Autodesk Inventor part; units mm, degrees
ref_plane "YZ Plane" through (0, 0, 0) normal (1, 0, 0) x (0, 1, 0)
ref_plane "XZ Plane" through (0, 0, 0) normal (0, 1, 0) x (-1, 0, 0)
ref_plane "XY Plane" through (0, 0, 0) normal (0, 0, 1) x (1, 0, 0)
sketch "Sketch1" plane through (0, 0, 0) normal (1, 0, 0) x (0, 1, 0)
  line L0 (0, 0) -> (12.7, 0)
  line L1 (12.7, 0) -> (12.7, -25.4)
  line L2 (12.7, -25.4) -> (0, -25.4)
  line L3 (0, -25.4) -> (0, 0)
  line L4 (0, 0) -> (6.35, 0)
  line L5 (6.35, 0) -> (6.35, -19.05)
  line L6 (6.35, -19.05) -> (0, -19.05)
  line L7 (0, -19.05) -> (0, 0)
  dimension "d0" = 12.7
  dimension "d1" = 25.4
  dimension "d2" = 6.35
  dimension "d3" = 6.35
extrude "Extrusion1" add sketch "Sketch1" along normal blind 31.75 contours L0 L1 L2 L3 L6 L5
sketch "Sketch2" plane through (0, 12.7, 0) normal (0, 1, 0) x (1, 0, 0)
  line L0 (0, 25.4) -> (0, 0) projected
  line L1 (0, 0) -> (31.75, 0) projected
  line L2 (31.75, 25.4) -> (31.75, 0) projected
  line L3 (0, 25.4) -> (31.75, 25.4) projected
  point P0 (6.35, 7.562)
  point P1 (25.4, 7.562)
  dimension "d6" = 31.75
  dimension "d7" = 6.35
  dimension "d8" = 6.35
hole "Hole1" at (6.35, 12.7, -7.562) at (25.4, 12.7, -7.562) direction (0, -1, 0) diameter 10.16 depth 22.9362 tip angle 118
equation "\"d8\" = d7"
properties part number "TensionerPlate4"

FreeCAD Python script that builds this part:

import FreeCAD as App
import Part
import Sketcher
from FreeCAD import Vector
Q = App.Units.Quantity

doc = App.newDocument("Part")
body = doc.addObject("PartDesign::Body", "Body")

# Sketch on YZ plane
sketch1 = doc.addObject("Sketcher::SketchObject", "Sketch")
body.addObject(sketch1)
sketch1.AttachmentSupport = (doc.YZ_Plane, [""])
sketch1.MapMode = "FlatFace"
sketch1.addGeometry([
    Part.LineSegment(Vector(13, 0, 0), Vector(6, 0, 0)),  # 0
    Part.LineSegment(Vector(6, 0, 0), Vector(6, -19, 0)),  # 1
    Part.LineSegment(Vector(6, -19, 0), Vector(0, -19, 0)),  # 2
    Part.LineSegment(Vector(0, -19, 0), Vector(0, -25, 0)),  # 3
    Part.LineSegment(Vector(0, -25, 0), Vector(13, -25, 0)),  # 4
    Part.LineSegment(Vector(13, -25, 0), Vector(13, 0, 0)),  # 5
], False)
sketch1.addConstraint([
    Sketcher.Constraint("Coincident", 0, 2, 1, 1),
    Sketcher.Constraint("Coincident", 1, 2, 2, 1),
    Sketcher.Constraint("Coincident", 2, 2, 3, 1),
    Sketcher.Constraint("Coincident", 3, 2, 4, 1),
    Sketcher.Constraint("Coincident", 4, 2, 5, 1),
    Sketcher.Constraint("Coincident", 5, 2, 0, 1),
    Sketcher.Constraint("Horizontal", 0),
    Sketcher.Constraint("Vertical", 1),
    Sketcher.Constraint("Horizontal", 2),
    Sketcher.Constraint("Vertical", 3),
    Sketcher.Constraint("Horizontal", 4),
    Sketcher.Constraint("Vertical", 5),
    Sketcher.Constraint("PointOnObject", 0, 2, -1),
    Sketcher.Constraint("PointOnObject", 2, 2, -2),
    Sketcher.Constraint("Equal", 0, 2),
    Sketcher.Constraint("Equal", 2, 3),
    Sketcher.Constraint("DistanceY", 5, 1, 5, 2, Q("1 in")),
    Sketcher.Constraint("DistanceX", 4, 1, 4, 2, Q("0.5 in")),
])
pad1 = doc.addObject("PartDesign::Pad", "Pad")
body.addObject(pad1)
pad1.Profile = sketch1
pad1.Length = Q("1.25 in")

# Sketch on XZ plane
sketch2 = doc.addObject("Sketcher::SketchObject", "Sketch001")
body.addObject(sketch2)
sketch2.AttachmentSupport = (doc.XZ_Plane, [""])
sketch2.MapMode = "FlatFace"
sketch2.AttachmentOffset = App.Placement(Vector(0, 0, -0.5 * 25.4), App.Rotation())
sketch2.addGeometry([
    Part.Circle(Vector(6, -8, 0), Vector(0, 0, 1), 5),
    Part.Circle(Vector(25, -8, 0), Vector(0, 0, 1), 5),
], False)
sketch2.addConstraint([
    Sketcher.Constraint("Equal", 0, 1),
    Sketcher.Constraint("Horizontal", 0, 3, 1, 3),
    Sketcher.Constraint("Diameter", 0, Q("0.4 in")),
    Sketcher.Constraint("DistanceX", -1, 1, 1, 3, Q("1 in")),
    Sketcher.Constraint("DistanceX", -1, 1, 0, 3, Q("0.25 in")),
    Sketcher.Constraint("DistanceY", 0, 3, -1, 1, 7.562),
])
doc.recompute()
hole = doc.addObject("PartDesign::Hole", "Hole")
body.addObject(hole)
hole.Profile = sketch2
hole.ThreadType = "None"
hole.Diameter = Q("0.4 in")
hole.DepthType = "Dimension"
hole.Depth = Q("0.903 in")
hole.DrillPoint = "Angled"
hole.DrillPointAngle = 118
hole.Reversed = True

doc.recompute()
